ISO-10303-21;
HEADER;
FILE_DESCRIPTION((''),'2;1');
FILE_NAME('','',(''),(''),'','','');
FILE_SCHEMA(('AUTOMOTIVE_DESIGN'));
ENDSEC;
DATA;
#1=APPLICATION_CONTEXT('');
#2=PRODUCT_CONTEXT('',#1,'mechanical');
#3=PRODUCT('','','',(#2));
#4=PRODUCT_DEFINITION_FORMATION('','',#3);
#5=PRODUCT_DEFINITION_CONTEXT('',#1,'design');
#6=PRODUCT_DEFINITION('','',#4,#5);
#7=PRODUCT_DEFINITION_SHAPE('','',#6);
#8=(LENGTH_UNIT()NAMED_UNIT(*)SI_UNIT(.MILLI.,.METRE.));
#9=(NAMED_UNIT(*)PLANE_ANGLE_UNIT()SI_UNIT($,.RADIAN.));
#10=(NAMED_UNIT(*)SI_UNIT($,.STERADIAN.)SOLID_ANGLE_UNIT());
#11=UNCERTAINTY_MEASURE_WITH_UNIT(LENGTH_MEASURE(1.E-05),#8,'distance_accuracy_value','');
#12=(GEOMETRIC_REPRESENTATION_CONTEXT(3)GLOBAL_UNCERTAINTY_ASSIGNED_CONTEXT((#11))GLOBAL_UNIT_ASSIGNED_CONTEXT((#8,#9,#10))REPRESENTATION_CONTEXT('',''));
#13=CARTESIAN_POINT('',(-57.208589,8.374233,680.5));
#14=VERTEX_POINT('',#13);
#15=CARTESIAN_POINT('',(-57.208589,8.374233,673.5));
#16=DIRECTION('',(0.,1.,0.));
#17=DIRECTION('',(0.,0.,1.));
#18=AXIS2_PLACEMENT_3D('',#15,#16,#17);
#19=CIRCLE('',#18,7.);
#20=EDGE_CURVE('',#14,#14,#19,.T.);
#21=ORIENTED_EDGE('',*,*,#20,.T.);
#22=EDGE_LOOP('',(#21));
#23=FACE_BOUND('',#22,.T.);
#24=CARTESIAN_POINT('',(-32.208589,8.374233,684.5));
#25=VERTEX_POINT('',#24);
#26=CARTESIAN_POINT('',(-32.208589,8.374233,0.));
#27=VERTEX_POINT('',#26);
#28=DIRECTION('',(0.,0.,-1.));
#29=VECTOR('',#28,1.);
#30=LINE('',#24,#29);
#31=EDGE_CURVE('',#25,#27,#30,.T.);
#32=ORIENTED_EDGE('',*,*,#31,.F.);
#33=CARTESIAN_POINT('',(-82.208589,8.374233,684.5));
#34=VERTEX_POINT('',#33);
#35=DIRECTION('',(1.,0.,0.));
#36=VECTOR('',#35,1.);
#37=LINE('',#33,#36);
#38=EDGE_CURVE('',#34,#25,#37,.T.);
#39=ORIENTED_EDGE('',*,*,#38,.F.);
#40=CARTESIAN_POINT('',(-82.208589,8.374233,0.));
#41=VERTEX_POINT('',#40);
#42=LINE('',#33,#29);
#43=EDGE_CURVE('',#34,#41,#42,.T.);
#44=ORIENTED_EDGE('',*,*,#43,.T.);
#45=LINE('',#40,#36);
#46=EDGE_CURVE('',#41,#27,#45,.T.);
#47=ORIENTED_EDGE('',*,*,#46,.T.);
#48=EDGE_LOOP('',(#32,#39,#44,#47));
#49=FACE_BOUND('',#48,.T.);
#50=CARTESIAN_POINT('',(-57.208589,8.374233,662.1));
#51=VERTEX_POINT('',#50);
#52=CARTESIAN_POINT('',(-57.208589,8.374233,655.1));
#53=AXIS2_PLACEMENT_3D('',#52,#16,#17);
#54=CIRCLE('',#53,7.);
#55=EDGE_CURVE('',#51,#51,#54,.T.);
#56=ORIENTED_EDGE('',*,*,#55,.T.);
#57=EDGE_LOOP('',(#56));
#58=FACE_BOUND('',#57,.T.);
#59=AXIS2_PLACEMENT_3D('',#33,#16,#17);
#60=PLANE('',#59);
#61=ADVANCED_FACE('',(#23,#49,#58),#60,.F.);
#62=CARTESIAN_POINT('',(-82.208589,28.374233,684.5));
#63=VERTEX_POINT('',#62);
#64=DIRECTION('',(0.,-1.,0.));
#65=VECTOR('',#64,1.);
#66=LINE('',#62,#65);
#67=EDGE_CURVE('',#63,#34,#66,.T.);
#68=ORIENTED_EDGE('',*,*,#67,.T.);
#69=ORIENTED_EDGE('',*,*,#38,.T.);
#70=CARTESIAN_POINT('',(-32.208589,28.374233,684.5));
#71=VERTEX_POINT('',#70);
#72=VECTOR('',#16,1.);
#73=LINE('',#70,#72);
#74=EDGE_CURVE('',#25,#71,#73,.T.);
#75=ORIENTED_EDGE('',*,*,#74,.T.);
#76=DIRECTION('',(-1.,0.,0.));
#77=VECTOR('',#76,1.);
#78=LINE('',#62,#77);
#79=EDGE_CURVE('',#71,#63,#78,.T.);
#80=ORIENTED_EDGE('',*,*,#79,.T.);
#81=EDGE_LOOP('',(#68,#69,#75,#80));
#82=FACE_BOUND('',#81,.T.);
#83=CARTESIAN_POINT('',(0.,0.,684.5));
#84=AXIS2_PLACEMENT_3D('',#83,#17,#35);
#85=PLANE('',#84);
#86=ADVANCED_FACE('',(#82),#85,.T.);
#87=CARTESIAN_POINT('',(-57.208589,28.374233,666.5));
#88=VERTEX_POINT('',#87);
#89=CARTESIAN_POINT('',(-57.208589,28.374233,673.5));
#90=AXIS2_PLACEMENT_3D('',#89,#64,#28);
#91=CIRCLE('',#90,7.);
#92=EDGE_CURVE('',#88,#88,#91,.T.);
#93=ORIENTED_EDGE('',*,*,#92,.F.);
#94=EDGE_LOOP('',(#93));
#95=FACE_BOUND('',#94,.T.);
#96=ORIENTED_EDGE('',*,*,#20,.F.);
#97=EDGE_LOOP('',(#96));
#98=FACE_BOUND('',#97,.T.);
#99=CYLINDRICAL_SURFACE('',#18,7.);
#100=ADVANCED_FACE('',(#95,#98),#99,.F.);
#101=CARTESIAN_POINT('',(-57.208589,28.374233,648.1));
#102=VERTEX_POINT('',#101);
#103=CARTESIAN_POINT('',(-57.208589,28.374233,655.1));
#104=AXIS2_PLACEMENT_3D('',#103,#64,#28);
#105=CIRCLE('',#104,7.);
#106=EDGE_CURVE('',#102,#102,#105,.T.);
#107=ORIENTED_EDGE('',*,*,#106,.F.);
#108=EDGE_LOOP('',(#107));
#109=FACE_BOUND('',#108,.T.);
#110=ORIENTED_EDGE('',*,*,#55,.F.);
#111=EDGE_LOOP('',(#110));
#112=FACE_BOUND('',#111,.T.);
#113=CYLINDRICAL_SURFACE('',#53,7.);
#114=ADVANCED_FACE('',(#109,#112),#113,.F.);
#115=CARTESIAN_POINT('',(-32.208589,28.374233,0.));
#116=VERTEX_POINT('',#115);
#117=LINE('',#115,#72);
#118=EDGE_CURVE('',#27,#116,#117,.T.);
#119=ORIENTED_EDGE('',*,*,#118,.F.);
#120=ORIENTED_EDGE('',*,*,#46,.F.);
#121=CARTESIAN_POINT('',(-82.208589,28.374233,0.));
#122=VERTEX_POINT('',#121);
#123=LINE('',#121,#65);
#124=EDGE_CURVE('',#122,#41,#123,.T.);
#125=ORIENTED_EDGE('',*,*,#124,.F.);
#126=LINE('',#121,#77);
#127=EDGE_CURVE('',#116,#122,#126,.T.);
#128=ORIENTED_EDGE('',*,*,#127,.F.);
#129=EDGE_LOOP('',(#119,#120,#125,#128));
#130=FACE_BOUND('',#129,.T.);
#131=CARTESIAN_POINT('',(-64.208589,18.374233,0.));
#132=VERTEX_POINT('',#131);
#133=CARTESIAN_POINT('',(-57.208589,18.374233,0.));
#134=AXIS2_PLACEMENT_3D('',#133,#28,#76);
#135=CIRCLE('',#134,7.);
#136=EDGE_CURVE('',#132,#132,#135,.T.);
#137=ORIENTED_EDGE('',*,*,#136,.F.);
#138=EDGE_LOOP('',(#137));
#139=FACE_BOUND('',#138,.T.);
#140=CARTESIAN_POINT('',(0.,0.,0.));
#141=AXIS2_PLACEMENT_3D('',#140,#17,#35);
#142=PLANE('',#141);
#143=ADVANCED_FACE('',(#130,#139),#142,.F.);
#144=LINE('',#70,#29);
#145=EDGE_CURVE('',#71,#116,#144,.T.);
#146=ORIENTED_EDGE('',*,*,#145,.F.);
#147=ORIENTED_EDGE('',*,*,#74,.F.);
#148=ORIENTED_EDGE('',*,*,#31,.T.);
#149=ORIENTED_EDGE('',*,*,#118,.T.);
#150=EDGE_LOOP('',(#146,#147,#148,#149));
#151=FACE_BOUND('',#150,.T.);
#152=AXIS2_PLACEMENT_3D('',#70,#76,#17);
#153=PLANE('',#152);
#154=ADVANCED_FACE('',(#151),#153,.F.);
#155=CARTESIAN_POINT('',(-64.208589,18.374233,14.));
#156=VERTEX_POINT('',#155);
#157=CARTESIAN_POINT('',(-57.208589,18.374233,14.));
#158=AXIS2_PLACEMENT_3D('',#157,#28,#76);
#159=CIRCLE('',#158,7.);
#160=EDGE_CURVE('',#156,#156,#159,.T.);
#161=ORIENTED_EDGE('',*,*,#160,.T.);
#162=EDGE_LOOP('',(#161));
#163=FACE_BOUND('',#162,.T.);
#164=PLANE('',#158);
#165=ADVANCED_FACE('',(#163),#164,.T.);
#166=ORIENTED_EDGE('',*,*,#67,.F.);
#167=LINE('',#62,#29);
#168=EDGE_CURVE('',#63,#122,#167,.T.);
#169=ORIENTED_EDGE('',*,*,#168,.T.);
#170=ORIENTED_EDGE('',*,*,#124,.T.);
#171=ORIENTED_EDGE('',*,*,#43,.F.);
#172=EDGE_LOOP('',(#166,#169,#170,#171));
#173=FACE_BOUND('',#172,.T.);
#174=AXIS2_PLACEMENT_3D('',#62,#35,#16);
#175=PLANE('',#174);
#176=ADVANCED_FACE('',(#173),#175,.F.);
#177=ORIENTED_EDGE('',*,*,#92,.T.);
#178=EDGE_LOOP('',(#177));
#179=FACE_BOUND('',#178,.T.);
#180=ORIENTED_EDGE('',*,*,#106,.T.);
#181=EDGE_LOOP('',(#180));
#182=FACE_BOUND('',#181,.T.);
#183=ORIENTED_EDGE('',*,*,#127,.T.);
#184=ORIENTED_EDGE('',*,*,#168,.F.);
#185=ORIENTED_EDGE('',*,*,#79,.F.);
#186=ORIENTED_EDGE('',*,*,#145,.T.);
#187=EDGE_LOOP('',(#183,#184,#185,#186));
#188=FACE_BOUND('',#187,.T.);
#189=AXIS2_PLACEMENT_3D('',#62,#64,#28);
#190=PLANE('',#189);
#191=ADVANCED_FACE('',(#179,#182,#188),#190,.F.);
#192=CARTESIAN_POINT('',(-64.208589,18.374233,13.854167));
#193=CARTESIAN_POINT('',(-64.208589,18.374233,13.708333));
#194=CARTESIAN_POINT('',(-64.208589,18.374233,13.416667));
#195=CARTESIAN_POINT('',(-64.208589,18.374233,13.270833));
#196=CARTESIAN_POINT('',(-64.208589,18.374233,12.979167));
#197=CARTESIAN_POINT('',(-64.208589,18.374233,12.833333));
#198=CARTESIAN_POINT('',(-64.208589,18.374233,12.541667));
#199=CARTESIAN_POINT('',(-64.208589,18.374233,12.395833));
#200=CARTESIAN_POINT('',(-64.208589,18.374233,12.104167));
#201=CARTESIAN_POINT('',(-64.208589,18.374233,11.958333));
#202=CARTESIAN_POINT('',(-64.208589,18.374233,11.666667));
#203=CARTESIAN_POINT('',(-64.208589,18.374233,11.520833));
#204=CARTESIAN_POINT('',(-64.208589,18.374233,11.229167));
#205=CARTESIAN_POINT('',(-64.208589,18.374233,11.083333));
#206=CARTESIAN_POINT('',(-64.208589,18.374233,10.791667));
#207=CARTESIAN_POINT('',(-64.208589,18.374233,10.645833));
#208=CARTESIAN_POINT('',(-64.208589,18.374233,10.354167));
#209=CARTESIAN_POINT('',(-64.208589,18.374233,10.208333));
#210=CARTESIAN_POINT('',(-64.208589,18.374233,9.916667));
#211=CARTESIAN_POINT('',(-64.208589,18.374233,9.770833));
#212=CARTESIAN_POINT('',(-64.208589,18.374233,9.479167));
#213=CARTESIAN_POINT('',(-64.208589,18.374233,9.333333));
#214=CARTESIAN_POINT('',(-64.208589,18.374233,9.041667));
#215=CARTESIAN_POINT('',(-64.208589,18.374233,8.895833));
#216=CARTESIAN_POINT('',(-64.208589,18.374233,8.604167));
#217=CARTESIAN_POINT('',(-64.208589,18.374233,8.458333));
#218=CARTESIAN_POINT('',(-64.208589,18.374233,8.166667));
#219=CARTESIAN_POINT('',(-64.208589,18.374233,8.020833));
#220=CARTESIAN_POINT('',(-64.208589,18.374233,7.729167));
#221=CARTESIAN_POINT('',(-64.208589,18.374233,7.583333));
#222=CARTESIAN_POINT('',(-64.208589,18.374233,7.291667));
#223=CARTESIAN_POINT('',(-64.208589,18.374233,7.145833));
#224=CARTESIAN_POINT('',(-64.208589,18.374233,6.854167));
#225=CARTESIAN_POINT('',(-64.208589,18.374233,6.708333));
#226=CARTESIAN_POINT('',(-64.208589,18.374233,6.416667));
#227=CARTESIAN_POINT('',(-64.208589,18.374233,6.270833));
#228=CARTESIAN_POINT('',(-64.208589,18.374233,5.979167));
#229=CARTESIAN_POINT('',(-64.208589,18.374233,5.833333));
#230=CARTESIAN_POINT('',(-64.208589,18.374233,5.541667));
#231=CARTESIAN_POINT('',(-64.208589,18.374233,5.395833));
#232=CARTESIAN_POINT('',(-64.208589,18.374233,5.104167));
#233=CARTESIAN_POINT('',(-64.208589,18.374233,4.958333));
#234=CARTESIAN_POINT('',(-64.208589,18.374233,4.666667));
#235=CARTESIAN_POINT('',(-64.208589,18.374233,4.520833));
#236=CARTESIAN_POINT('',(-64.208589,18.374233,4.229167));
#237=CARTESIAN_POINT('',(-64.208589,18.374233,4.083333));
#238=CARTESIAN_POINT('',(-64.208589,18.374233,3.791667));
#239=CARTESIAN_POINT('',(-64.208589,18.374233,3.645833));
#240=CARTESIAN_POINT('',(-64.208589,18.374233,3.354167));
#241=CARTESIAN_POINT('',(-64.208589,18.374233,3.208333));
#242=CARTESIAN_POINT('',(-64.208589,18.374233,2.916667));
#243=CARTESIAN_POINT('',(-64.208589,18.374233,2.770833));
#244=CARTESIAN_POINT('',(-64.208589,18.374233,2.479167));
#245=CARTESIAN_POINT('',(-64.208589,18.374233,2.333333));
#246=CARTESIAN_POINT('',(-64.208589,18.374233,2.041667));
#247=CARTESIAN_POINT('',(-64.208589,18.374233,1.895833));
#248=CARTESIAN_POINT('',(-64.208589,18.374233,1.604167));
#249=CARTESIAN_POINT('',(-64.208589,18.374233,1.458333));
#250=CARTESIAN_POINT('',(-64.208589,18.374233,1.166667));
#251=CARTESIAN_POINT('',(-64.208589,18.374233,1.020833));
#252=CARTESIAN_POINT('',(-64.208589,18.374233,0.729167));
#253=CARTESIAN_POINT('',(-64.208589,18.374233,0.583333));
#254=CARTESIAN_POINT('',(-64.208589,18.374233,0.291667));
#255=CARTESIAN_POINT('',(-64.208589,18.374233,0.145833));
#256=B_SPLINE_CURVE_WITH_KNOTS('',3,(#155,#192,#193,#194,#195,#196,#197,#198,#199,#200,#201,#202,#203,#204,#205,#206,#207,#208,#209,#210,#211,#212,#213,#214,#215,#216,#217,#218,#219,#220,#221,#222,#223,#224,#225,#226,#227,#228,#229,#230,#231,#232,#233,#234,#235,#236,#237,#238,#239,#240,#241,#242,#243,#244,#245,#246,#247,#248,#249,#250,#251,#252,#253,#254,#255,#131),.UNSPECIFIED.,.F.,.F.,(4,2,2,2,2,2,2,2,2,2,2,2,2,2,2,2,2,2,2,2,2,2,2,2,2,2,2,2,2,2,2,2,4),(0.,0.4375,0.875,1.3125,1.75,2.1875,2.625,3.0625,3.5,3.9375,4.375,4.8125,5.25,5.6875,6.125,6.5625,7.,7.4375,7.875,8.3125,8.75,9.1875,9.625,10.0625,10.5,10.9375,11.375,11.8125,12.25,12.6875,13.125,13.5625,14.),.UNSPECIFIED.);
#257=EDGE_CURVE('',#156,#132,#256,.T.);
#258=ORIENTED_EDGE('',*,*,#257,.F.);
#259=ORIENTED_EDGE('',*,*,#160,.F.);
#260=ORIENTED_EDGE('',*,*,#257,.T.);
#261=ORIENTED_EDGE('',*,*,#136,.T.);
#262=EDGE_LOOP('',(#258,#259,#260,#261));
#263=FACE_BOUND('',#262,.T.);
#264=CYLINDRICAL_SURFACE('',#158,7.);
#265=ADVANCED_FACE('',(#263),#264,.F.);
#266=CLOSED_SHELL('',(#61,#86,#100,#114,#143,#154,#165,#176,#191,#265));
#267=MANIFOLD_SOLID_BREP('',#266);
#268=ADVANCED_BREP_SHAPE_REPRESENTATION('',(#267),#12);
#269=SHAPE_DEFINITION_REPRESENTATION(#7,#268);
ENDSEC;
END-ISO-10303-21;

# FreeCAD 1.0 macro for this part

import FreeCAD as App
import Part
import Sketcher
from FreeCAD import Vector
Q = App.Units.Quantity

doc = App.newDocument("Part")
body = doc.addObject("PartDesign::Body", "Body")

sketch1 = body.newObject("Sketcher::SketchObject", "Sketch")
sketch1.AttachmentSupport = (doc.getObject("XY_Plane"), [""])
sketch1.MapMode = "FlatFace"
sketch1.addGeometry([
    Part.LineSegment(Vector(-82, 28, 0), Vector(-82, 8, 0)),
    Part.LineSegment(Vector(-82, 8, 0), Vector(-32, 8, 0)),
    Part.LineSegment(Vector(-32, 8, 0), Vector(-32, 28, 0)),
    Part.LineSegment(Vector(-32, 28, 0), Vector(-82, 28, 0)),
], False)
sketch1.addConstraint([
    Sketcher.Constraint("Coincident", 0, 2, 1, 1),
    Sketcher.Constraint("Coincident", 1, 2, 2, 1),
    Sketcher.Constraint("Coincident", 2, 2, 3, 1),
    Sketcher.Constraint("Coincident", 3, 2, 0, 1),
    Sketcher.Constraint("Vertical", 0),
    Sketcher.Constraint("Horizontal", 1),
    Sketcher.Constraint("Vertical", 2),
    Sketcher.Constraint("Horizontal", 3),
    Sketcher.Constraint("DistanceX", 1, 1, 1, 2, Q("50 mm")),
    Sketcher.Constraint("DistanceY", 0, 2, 0, 1, Q("20 mm")),
    Sketcher.Constraint("DistanceX", 0, 2, -1, 1, Q("82.208589 mm")),
    Sketcher.Constraint("DistanceY", -1, 1, 0, 2, Q("8.374233 mm")),
])
pad1 = body.newObject("PartDesign::Pad", "Pad")
pad1.Profile = sketch1
pad1.Length = 684.5

sketch2 = body.newObject("Sketcher::SketchObject", "Sketch001")
sketch2.AttachmentSupport = (doc.getObject("XZ_Plane"), [""])
sketch2.MapMode = "FlatFace"
sketch2.AttachmentOffset = App.Placement(Vector(0, 0, -28.374233), App.Rotation())
sketch2.addGeometry([
    Part.Circle(Vector(-57, 674, 0), Vector(0, 0, 1), 7),
    Part.Circle(Vector(-57, 655, 0), Vector(0, 0, 1), 7),
], False)
sketch2.addConstraint([
    Sketcher.Constraint("Equal", 0, 1),
    Sketcher.Constraint("Vertical", 0, 3, 1, 3),
    Sketcher.Constraint("Diameter", 0, Q("14 mm")),
    Sketcher.Constraint("DistanceY", -1, 1, 0, 3, Q("673.5 mm")),
    Sketcher.Constraint("DistanceY", -1, 1, 1, 3, Q("655.1 mm")),
    Sketcher.Constraint("DistanceX", 0, 3, -1, 1, Q("57.208589 mm")),
])
pocket1 = body.newObject("PartDesign::Pocket", "Pocket")
pocket1.Profile = sketch2
pocket1.Type = "ThroughAll"
pocket1.Midplane = True

sketch3 = body.newObject("Sketcher::SketchObject", "Sketch002")
sketch3.AttachmentSupport = (doc.getObject("XY_Plane"), [""])
sketch3.MapMode = "FlatFace"
sketch3.addGeometry(Part.Circle(Vector(-57, 18, 0), Vector(0, 0, 1), 7), False)
sketch3.addConstraint([
    Sketcher.Constraint("Diameter", 0, Q("14 mm")),
    Sketcher.Constraint("DistanceX", 0, 3, -1, 1, Q("57.208589 mm")),
    Sketcher.Constraint("DistanceY", -1, 1, 0, 3, Q("18.374233 mm")),
])
pocket2 = body.newObject("PartDesign::Pocket", "Pocket001")
pocket2.Profile = sketch3
pocket2.Length = 14
pocket2.Reversed = True

doc.recompute()
